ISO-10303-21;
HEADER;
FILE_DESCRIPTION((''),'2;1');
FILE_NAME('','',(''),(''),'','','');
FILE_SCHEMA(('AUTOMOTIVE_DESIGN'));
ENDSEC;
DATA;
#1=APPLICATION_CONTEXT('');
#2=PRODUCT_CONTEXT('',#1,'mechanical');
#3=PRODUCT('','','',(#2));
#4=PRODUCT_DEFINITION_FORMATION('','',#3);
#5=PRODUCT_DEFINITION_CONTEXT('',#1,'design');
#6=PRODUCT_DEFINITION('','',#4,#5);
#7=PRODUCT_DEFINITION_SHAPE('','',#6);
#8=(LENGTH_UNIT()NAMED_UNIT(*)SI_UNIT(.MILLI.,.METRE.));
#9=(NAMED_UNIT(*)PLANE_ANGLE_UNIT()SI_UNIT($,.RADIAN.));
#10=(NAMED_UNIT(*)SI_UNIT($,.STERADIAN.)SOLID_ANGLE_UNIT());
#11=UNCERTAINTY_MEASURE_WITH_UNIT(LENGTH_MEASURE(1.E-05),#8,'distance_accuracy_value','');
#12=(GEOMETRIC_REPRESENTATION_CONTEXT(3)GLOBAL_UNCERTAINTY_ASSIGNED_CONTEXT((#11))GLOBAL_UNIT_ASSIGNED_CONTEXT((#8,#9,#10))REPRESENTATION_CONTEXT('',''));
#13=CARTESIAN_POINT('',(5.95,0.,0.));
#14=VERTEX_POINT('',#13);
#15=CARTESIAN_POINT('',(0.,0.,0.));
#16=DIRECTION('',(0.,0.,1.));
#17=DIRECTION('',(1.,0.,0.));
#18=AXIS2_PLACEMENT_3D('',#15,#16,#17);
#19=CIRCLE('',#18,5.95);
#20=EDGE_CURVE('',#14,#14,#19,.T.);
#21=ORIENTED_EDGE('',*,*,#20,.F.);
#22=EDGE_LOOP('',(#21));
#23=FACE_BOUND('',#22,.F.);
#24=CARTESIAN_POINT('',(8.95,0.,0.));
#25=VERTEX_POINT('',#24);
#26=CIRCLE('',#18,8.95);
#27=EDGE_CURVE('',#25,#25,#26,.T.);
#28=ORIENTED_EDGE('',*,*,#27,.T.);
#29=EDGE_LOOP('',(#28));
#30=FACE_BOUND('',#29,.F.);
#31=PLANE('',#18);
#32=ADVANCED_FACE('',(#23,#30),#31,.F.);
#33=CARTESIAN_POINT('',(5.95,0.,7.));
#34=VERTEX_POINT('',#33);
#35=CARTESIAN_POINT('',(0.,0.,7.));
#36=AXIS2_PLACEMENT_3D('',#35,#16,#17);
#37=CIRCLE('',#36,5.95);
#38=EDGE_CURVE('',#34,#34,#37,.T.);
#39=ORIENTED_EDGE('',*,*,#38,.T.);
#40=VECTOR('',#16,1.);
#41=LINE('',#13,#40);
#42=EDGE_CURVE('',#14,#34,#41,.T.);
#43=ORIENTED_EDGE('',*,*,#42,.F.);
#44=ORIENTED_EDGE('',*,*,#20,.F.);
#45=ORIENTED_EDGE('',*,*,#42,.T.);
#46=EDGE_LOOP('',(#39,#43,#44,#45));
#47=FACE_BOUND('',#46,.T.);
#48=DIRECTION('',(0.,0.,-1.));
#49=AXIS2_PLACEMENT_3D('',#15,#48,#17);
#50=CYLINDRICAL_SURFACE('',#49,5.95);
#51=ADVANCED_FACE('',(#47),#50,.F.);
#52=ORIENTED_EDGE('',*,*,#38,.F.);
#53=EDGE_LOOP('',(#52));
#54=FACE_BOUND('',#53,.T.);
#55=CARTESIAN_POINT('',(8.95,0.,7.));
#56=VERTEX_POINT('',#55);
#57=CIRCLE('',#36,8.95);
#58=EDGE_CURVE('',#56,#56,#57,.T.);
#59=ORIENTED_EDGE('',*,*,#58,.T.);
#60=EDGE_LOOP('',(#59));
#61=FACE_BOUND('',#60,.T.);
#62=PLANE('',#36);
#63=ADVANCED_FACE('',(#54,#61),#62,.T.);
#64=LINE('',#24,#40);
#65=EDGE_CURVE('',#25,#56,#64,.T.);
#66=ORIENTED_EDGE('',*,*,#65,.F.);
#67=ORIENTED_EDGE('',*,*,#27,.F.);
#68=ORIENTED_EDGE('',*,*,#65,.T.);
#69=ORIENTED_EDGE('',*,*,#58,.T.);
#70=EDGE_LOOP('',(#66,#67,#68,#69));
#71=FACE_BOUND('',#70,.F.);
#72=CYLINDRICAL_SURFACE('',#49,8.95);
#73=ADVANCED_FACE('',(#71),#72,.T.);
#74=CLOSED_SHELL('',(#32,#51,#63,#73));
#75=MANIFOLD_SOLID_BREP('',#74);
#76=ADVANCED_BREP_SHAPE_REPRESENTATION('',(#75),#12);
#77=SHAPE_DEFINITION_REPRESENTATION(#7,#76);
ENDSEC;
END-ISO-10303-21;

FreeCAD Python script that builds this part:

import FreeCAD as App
import Part
import Sketcher

V = App.Vector
Q = App.Units.Quantity

doc = App.newDocument("Part")
body = doc.addObject("PartDesign::Body", "Body")

sketch1 = doc.addObject("Sketcher::SketchObject", "Sketch")
body.addObject(sketch1)
sketch1.AttachmentSupport = (doc.XY_Plane, [""])
sketch1.MapMode = "FlatFace"
sketch1.addGeometry(Part.Circle(V(0, 0, 0), V(0, 0, 1), 9), False)
sketch1.addGeometry(Part.Circle(V(0, 0, 0), V(0, 0, 1), 6), False)
sketch1.addConstraint(Sketcher.Constraint("Coincident", 0, 3, -1, 1))
sketch1.addConstraint(Sketcher.Constraint("Coincident", 1, 3, -1, 1))
sketch1.addConstraint(Sketcher.Constraint("Diameter", 0, Q("17.9 mm")))
sketch1.addConstraint(Sketcher.Constraint("Diameter", 1, Q("11.9 mm")))
pad1 = doc.addObject("PartDesign::Pad", "Pad")
body.addObject(pad1)
pad1.Profile = sketch1
pad1.Length = 7

doc.recompute()
